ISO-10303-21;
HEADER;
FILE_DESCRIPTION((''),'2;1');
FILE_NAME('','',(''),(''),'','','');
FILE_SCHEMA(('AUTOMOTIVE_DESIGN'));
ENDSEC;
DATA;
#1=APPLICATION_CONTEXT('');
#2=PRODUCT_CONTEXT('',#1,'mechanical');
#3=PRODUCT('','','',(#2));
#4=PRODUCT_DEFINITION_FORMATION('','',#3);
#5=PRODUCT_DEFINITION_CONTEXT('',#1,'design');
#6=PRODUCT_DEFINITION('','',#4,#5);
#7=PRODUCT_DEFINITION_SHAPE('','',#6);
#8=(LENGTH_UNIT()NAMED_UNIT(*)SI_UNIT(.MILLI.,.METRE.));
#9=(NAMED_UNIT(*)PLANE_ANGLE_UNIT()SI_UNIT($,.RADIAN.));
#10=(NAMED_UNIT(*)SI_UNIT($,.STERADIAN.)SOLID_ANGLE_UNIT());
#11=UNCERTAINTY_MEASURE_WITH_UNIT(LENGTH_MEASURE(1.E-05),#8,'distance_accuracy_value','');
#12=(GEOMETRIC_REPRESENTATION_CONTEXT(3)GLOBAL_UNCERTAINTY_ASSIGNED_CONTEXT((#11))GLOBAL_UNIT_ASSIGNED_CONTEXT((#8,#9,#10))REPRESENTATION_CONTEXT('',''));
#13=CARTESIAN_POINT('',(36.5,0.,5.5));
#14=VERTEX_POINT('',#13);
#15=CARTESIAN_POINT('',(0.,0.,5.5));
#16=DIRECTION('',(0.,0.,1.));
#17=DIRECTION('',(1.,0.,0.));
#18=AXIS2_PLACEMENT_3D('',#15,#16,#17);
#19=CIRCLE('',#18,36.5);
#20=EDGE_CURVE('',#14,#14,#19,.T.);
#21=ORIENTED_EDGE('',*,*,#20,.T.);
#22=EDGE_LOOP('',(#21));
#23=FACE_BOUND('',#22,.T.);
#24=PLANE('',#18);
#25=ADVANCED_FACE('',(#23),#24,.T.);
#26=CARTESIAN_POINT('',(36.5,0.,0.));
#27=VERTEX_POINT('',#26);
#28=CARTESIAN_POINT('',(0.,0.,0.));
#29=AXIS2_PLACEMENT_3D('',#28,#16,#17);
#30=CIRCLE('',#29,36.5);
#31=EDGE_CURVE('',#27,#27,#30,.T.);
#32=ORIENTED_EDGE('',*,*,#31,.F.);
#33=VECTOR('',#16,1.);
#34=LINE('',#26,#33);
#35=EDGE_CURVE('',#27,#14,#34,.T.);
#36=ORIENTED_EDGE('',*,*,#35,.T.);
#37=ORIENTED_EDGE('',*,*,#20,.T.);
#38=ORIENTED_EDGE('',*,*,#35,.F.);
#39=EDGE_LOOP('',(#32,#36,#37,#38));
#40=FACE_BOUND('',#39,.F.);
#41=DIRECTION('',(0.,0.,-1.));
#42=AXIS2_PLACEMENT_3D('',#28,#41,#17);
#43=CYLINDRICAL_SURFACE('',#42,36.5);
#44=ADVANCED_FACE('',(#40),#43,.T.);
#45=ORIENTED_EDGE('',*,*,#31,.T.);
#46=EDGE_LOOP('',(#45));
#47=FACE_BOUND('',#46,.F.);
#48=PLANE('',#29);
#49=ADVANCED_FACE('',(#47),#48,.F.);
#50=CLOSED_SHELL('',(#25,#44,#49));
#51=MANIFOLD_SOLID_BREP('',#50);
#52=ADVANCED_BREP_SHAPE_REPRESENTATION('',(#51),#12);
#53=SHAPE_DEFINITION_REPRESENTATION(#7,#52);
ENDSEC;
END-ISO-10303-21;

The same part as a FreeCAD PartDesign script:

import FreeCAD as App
import Part
import Sketcher

V = App.Vector
Q = App.Units.Quantity

doc = App.newDocument("Part")
body = doc.addObject("PartDesign::Body", "Body")

# Sketch on XY plane
sketch1 = body.newObject("Sketcher::SketchObject", "Sketch")
sketch1.AttachmentSupport = (doc.getObject("XY_Plane"), [""])
sketch1.MapMode = "FlatFace"
sketch1.addGeometry(Part.Circle(V(0, 0, 0), V(0, 0, 1), 36.5), False)
sketch1.addConstraint([
    Sketcher.Constraint("Coincident", 0, 3, -1, 1),
    Sketcher.Constraint("Diameter", 0, Q("73 mm")),
])
pad1 = body.newObject("PartDesign::Pad", "Pad")
pad1.Profile = sketch1
pad1.Length = 5.5

doc.recompute()
